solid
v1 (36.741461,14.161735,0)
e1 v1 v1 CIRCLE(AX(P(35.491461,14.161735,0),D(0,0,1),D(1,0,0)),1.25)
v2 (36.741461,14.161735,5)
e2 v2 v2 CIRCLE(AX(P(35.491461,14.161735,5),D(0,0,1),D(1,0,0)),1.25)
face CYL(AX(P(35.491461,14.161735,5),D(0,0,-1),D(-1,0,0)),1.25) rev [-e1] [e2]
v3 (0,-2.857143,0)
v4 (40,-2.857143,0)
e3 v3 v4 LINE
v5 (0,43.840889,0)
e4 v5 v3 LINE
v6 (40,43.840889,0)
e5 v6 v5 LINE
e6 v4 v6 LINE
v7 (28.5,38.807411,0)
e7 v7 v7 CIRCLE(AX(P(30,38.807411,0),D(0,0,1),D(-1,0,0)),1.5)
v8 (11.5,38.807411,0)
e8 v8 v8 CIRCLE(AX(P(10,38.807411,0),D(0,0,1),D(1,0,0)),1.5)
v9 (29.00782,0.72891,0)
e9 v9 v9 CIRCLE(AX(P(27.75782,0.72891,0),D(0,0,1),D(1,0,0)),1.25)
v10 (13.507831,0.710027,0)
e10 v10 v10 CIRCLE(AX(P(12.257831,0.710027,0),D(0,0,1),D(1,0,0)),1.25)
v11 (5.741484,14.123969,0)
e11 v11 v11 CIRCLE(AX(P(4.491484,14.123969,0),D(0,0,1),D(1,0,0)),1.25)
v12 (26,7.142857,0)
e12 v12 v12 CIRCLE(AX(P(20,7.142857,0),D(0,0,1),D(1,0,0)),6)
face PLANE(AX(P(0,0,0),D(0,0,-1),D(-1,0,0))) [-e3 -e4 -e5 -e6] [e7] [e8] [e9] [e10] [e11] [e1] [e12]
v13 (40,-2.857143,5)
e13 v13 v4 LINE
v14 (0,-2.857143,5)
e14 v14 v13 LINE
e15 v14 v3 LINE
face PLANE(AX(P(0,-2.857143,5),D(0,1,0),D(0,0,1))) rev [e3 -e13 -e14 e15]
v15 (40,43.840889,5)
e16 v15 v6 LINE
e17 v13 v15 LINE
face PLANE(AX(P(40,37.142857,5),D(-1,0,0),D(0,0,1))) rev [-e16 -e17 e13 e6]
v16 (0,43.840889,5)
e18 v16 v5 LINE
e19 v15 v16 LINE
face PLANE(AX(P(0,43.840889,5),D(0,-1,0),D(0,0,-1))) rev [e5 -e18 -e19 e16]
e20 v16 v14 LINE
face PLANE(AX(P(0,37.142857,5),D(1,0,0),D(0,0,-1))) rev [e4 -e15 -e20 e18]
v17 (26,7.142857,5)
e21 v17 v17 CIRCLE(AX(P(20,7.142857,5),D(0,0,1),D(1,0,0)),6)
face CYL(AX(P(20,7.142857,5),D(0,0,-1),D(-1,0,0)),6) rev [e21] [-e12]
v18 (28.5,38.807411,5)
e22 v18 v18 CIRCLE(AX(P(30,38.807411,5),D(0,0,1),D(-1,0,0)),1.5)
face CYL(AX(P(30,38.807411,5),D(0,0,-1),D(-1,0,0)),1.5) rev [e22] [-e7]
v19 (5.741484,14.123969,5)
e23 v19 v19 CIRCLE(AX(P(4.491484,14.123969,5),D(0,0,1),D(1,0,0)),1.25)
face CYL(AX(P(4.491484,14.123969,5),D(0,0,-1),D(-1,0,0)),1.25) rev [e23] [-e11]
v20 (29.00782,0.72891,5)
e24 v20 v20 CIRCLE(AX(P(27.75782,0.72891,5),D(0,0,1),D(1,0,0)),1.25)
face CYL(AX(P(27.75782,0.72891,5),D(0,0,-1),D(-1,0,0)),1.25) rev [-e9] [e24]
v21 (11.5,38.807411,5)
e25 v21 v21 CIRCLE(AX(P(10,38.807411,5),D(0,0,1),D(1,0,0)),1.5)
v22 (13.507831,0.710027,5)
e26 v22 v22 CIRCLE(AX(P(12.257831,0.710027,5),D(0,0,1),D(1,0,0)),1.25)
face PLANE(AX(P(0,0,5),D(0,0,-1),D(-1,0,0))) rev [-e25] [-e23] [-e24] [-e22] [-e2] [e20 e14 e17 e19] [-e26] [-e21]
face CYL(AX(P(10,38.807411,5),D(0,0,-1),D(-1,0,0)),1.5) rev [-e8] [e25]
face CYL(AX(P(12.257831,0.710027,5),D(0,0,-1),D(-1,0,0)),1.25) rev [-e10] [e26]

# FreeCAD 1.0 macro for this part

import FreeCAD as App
import Part
import Sketcher
from FreeCAD import Vector

doc = App.newDocument("Part")
body = doc.addObject("PartDesign::Body", "Body")

sketch1 = doc.addObject("Sketcher::SketchObject", "Sketch")
body.addObject(sketch1)
sketch1.AttachmentSupport = (doc.XY_Plane, [""])
sketch1.MapMode = "FlatFace"
sketch1.addGeometry([
    Part.LineSegment(Vector(0, -2.857143, 0), Vector(40, -2.857143, 0)),
    Part.LineSegment(Vector(40, -2.857143, 0), Vector(40, 43.840889, 0)),
    Part.LineSegment(Vector(40, 43.840889, 0), Vector(0, 43.840889, 0)),
    Part.LineSegment(Vector(0, 43.840889, 0), Vector(0, -2.857143, 0)),
    Part.Circle(Vector(12.257831, 0.710027, 0), Vector(0, 0, 1), 1.25),
    Part.Circle(Vector(4.491484, 14.123969, 0), Vector(0, 0, 1), 1.25),
    Part.Circle(Vector(27.75782, 0.72891, 0), Vector(0, 0, 1), 1.25),
    Part.Circle(Vector(20, 7.142857, 0), Vector(0, 0, 1), 6),
    Part.Circle(Vector(35.491461, 14.161735, 0), Vector(0, 0, 1), 1.25),
    Part.Circle(Vector(10, 38.807411, 0), Vector(0, 0, 1), 1.5),
    Part.Circle(Vector(30, 38.807411, 0), Vector(0, 0, 1), 1.5),
], False)
sketch1.addConstraint([
    Sketcher.Constraint("Coincident", 0, 2, 1, 1),
    Sketcher.Constraint("Coincident", 1, 2, 2, 1),
    Sketcher.Constraint("Coincident", 2, 2, 3, 1),
    Sketcher.Constraint("Coincident", 3, 2, 0, 1),
    Sketcher.Constraint("Horizontal", 0),
    Sketcher.Constraint("Vertical", 1),
    Sketcher.Constraint("Horizontal", 2),
    Sketcher.Constraint("Vertical", 3),
    Sketcher.Constraint("Equal", 4, 5),
    Sketcher.Constraint("Equal", 5, 6),
    Sketcher.Constraint("Equal", 6, 8),
    Sketcher.Constraint("Equal", 9, 10),
    Sketcher.Constraint("PointOnObject", 2, 2, -2),
    Sketcher.Constraint("Horizontal", 9, 3, 10, 3),
    Sketcher.Constraint("Diameter", 7, 12.0),
    Sketcher.Constraint("Diameter", 9, 3.0),
    Sketcher.Constraint("Diameter", 4, 2.5),
    Sketcher.Constraint("DistanceX", 0, 1, 0, 2, 40.0),
    Sketcher.Constraint("DistanceX", -1, 1, 7, 3, 20.0),
    Sketcher.Constraint("DistanceX", -1, 1, 9, 3, 10.0),
    Sketcher.Constraint("DistanceX", -1, 1, 10, 3, 30.0),
    Sketcher.Constraint("DistanceY", 0, 2, 7, 3, 10.0),
    Sketcher.Constraint("DistanceY", 1, 1, 1, 2, 46.698032),
    Sketcher.Constraint("DistanceY", 6, 3, 9, 3, 38.078501),
    Sketcher.Constraint("DistanceX", -1, 1, 4, 3, 12.257831),
    Sketcher.Constraint("DistanceY", -1, 1, 5, 3, 14.123969),
    Sketcher.Constraint("DistanceX", -1, 1, 6, 3, 27.75782),
    Sketcher.Constraint("DistanceY", -1, 1, 6, 3, 0.72891),
    Sketcher.Constraint("DistanceX", -1, 1, 8, 3, 35.491461),
    Sketcher.Constraint("DistanceY", -1, 1, 1, 2, 43.840889),
    Sketcher.Constraint("DistanceY", 4, 3, 7, 3, 6.432831),
    Sketcher.Constraint("DistanceY", 4, 3, 8, 3, 13.451709),
    Sketcher.Constraint("DistanceX", -1, 1, 5, 3, 4.491484),
])
pad1 = doc.addObject("PartDesign::Pad", "Pad")
body.addObject(pad1)
pad1.Profile = sketch1
pad1.Length = 5

doc.recompute()
